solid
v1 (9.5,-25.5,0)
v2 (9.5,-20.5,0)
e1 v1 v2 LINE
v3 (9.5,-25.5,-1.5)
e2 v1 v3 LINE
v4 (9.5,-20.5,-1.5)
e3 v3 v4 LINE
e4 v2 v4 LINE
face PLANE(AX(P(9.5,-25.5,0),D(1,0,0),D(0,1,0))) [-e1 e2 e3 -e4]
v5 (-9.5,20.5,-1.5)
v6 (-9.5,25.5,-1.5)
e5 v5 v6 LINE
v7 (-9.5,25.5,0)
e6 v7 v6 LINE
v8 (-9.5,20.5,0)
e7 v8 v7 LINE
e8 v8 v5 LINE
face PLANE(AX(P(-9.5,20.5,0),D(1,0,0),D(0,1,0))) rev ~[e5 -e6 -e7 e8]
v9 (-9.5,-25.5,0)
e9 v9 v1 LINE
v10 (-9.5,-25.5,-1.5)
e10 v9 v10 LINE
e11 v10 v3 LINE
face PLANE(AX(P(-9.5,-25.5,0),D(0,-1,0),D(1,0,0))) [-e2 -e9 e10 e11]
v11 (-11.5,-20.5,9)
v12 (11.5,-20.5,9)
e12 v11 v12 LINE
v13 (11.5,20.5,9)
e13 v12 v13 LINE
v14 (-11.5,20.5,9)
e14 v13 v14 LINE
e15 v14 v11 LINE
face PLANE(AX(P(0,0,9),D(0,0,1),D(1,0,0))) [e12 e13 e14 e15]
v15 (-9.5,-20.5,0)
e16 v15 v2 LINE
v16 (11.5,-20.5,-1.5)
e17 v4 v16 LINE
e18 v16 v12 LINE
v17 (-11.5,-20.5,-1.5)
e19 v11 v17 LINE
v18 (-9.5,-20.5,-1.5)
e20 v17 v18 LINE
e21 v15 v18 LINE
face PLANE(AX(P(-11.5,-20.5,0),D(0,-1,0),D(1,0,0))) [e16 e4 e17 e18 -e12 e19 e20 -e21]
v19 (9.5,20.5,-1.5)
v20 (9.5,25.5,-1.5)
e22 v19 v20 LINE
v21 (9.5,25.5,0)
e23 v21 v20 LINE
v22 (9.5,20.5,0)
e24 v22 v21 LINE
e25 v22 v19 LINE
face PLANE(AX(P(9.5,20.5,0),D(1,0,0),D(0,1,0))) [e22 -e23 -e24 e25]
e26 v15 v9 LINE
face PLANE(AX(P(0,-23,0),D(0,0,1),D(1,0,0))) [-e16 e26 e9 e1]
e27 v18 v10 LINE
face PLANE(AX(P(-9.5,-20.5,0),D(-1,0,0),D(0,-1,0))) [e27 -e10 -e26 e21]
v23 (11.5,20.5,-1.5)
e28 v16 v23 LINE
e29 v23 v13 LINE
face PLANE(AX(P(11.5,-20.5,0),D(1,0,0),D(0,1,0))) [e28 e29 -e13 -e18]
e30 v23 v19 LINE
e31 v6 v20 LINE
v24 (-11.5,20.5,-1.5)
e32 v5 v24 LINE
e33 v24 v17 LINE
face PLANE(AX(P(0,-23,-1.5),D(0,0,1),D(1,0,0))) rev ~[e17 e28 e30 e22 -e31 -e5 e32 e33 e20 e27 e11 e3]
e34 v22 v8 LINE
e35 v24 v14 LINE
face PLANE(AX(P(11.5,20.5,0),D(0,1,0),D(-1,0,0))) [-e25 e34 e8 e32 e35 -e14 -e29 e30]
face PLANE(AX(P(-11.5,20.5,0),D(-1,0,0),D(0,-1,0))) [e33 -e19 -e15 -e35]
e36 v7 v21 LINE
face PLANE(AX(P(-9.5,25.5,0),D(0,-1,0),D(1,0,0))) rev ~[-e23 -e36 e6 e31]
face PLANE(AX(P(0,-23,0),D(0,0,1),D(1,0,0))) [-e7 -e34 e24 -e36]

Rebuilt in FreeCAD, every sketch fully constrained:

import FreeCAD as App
import Part
import Sketcher
from FreeCAD import Vector
Q = App.Units.Quantity


def add_polygon(sketch, points):
    """Adds a closed chain of lines whose ends are joined by coincident constraints."""
    first, n = sketch.GeometryCount, len(points)
    for a, b in zip(points, points[1:] + points[:1]):
        sketch.addGeometry(Part.LineSegment(App.Vector(*a, 0), App.Vector(*b, 0)), False)
    for i in range(n):
        sketch.addConstraint(Sketcher.Constraint("Coincident", first + i, 2, first + (i + 1) % n, 1))

doc = App.newDocument("Part")
body = doc.addObject("PartDesign::Body", "Body")

# Sketch on XY plane
sketch1 = doc.addObject("Sketcher::SketchObject", "Sketch")
body.addObject(sketch1)
sketch1.AttachmentSupport = (doc.XY_Plane, [""])
sketch1.MapMode = "FlatFace"
add_polygon(sketch1, [(12, -20), (12, 20), (-12, 20), (-12, -20)])  # lines 0-3
sketch1.addConstraint(Sketcher.Constraint("Vertical", 0))
sketch1.addConstraint(Sketcher.Constraint("Horizontal", 1))
sketch1.addConstraint(Sketcher.Constraint("Vertical", 2))
sketch1.addConstraint(Sketcher.Constraint("Horizontal", 3))
sketch1.addConstraint(Sketcher.Constraint("Symmetric", 0, 2, 2, 2, -1, 1))
sketch1.addConstraint(Sketcher.Constraint("DistanceX", 1, 2, 1, 1, Q("23 mm")))
sketch1.addConstraint(Sketcher.Constraint("DistanceY", 0, 1, 0, 2, Q("41 mm")))
pad1 = doc.addObject("PartDesign::Pad", "Pad")
body.addObject(pad1)
pad1.Profile = sketch1
pad1.Length = 9

# Sketch on XY plane
sketch2 = doc.addObject("Sketcher::SketchObject", "Sketch001")
body.addObject(sketch2)
sketch2.AttachmentSupport = (doc.XY_Plane, [""])
sketch2.MapMode = "FlatFace"
add_polygon(sketch2, [(-9.5, -25.5), (9.5, -25.5), (9.5, -20.5), (11.5, -20.5), (11.5, 20.5), (9.5, 20.5), (9.5, 25.5), (-9.5, 25.5), (-9.5, 20.5), (-11.5, 20.5), (-11.5, -20.5), (-9.5, -20.5)])  # lines 0-11
sketch2.addConstraint(Sketcher.Constraint("Horizontal", 0))
sketch2.addConstraint(Sketcher.Constraint("Vertical", 1))
sketch2.addConstraint(Sketcher.Constraint("Horizontal", 2))
sketch2.addConstraint(Sketcher.Constraint("Vertical", 3))
sketch2.addConstraint(Sketcher.Constraint("Horizontal", 4))
sketch2.addConstraint(Sketcher.Constraint("Vertical", 5))
sketch2.addConstraint(Sketcher.Constraint("Horizontal", 6))
sketch2.addConstraint(Sketcher.Constraint("Vertical", 7))
sketch2.addConstraint(Sketcher.Constraint("Horizontal", 8))
sketch2.addConstraint(Sketcher.Constraint("Vertical", 9))
sketch2.addConstraint(Sketcher.Constraint("Horizontal", 10))
sketch2.addConstraint(Sketcher.Constraint("Vertical", 11))
sketch2.addConstraint(Sketcher.Constraint("Symmetric", 0, 2, 6, 2, -1, 1))
sketch2.addConstraint(Sketcher.Constraint("Symmetric", 2, 2, 8, 2, -1, 1))
sketch2.addConstraint(Sketcher.Constraint("Symmetric", 4, 2, 10, 2, -1, 1))
sketch2.addConstraint(Sketcher.Constraint("Symmetric", 4, 2, 7, 2, -2))
sketch2.addConstraint(Sketcher.Constraint("DistanceX", 0, 1, 0, 2, Q("19 mm")))
sketch2.addConstraint(Sketcher.Constraint("DistanceX", 2, 1, 2, 2, Q("2 mm")))
sketch2.addConstraint(Sketcher.Constraint("DistanceY", 1, 1, 1, 2, Q("5 mm")))
sketch2.addConstraint(Sketcher.Constraint("DistanceY", 3, 1, 3, 2, Q("41 mm")))
pad2 = doc.addObject("PartDesign::Pad", "Pad001")
body.addObject(pad2)
pad2.Profile = sketch2
pad2.Length = 1.5
pad2.Reversed = True

doc.recompute()
